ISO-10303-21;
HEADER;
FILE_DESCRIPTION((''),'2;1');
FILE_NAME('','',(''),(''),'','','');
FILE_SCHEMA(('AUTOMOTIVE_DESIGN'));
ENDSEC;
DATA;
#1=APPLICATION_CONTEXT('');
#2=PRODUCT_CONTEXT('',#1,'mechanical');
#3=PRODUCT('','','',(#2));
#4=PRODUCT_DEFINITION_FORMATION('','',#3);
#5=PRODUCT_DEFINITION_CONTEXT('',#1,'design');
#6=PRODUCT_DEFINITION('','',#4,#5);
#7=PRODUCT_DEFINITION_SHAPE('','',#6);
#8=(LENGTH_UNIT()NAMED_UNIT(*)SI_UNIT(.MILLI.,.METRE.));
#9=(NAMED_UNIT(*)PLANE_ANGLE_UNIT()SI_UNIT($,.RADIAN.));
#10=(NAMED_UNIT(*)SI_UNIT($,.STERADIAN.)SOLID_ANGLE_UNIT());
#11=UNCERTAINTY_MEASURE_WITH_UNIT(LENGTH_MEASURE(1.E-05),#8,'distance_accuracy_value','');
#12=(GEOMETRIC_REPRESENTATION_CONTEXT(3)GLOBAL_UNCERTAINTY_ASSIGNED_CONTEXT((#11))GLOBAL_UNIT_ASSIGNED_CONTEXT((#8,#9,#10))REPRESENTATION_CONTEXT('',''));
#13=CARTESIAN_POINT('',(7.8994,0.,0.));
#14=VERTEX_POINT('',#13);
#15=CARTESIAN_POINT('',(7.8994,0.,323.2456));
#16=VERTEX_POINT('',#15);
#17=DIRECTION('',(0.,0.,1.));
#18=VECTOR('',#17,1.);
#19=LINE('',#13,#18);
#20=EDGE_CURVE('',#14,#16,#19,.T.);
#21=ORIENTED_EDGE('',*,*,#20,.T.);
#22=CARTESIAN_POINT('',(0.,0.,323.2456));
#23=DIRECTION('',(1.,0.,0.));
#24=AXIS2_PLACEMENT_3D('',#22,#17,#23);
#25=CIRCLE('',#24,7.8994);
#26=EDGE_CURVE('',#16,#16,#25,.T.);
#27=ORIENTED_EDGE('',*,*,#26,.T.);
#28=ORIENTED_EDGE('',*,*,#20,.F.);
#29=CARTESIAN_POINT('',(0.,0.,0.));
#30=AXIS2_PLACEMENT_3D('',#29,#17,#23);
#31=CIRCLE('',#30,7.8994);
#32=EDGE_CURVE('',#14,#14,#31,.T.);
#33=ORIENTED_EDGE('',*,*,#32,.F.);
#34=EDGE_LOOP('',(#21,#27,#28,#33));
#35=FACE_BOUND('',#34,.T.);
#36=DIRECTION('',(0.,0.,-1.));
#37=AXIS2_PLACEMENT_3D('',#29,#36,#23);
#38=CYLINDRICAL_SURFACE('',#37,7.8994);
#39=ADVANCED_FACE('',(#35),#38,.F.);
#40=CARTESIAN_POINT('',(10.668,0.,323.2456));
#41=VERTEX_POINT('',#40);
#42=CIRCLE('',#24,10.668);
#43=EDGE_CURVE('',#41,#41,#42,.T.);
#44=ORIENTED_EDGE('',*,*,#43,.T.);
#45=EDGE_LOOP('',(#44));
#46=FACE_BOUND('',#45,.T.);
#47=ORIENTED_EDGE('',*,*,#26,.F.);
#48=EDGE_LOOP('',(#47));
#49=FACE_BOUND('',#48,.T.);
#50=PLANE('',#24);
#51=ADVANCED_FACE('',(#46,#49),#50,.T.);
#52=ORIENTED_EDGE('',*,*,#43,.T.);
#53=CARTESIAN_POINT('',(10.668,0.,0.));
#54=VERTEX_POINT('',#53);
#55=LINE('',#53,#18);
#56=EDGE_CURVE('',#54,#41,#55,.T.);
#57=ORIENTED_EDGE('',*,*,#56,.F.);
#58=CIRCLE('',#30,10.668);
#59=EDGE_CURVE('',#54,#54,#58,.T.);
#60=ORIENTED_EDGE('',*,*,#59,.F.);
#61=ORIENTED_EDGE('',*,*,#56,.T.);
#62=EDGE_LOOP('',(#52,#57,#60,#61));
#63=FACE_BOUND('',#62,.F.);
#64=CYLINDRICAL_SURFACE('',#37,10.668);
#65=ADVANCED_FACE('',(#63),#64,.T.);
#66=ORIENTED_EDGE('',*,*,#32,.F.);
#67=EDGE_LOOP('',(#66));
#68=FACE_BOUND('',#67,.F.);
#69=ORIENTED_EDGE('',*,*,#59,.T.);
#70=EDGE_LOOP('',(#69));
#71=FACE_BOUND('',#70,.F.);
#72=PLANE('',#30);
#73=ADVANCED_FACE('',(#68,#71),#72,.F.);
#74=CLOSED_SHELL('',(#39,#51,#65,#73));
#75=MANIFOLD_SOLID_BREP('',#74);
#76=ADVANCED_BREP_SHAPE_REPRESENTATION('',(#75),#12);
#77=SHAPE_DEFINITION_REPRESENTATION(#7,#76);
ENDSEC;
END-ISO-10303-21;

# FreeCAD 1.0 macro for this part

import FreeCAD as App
import Part
import Sketcher
from FreeCAD import Vector
Q = App.Units.Quantity

doc = App.newDocument("Part")
body = doc.addObject("PartDesign::Body", "Body")

# Sketch on XY plane
sketch1 = body.newObject("Sketcher::SketchObject", "Sketch")
sketch1.AttachmentSupport = (doc.getObject("XY_Plane"), [""])
sketch1.MapMode = "FlatFace"
sketch1.addGeometry([
    Part.Circle(Vector(0, 0, 0), Vector(0, 0, 1), 11),
    Part.Circle(Vector(0, 0, 0), Vector(0, 0, 1), 8),
], False)
sketch1.addConstraint([
    Sketcher.Constraint("Coincident", 0, 3, -1, 1),
    Sketcher.Constraint("Coincident", 1, 3, -1, 1),
    Sketcher.Constraint("Diameter", 0, Q("0.84 in")),
    Sketcher.Constraint("Diameter", 1, Q("0.622 in")),
])
pad1 = body.newObject("PartDesign::Pad", "Pad")
pad1.Profile = sketch1
pad1.Length = Q("12.7262047 in")

doc.recompute()
